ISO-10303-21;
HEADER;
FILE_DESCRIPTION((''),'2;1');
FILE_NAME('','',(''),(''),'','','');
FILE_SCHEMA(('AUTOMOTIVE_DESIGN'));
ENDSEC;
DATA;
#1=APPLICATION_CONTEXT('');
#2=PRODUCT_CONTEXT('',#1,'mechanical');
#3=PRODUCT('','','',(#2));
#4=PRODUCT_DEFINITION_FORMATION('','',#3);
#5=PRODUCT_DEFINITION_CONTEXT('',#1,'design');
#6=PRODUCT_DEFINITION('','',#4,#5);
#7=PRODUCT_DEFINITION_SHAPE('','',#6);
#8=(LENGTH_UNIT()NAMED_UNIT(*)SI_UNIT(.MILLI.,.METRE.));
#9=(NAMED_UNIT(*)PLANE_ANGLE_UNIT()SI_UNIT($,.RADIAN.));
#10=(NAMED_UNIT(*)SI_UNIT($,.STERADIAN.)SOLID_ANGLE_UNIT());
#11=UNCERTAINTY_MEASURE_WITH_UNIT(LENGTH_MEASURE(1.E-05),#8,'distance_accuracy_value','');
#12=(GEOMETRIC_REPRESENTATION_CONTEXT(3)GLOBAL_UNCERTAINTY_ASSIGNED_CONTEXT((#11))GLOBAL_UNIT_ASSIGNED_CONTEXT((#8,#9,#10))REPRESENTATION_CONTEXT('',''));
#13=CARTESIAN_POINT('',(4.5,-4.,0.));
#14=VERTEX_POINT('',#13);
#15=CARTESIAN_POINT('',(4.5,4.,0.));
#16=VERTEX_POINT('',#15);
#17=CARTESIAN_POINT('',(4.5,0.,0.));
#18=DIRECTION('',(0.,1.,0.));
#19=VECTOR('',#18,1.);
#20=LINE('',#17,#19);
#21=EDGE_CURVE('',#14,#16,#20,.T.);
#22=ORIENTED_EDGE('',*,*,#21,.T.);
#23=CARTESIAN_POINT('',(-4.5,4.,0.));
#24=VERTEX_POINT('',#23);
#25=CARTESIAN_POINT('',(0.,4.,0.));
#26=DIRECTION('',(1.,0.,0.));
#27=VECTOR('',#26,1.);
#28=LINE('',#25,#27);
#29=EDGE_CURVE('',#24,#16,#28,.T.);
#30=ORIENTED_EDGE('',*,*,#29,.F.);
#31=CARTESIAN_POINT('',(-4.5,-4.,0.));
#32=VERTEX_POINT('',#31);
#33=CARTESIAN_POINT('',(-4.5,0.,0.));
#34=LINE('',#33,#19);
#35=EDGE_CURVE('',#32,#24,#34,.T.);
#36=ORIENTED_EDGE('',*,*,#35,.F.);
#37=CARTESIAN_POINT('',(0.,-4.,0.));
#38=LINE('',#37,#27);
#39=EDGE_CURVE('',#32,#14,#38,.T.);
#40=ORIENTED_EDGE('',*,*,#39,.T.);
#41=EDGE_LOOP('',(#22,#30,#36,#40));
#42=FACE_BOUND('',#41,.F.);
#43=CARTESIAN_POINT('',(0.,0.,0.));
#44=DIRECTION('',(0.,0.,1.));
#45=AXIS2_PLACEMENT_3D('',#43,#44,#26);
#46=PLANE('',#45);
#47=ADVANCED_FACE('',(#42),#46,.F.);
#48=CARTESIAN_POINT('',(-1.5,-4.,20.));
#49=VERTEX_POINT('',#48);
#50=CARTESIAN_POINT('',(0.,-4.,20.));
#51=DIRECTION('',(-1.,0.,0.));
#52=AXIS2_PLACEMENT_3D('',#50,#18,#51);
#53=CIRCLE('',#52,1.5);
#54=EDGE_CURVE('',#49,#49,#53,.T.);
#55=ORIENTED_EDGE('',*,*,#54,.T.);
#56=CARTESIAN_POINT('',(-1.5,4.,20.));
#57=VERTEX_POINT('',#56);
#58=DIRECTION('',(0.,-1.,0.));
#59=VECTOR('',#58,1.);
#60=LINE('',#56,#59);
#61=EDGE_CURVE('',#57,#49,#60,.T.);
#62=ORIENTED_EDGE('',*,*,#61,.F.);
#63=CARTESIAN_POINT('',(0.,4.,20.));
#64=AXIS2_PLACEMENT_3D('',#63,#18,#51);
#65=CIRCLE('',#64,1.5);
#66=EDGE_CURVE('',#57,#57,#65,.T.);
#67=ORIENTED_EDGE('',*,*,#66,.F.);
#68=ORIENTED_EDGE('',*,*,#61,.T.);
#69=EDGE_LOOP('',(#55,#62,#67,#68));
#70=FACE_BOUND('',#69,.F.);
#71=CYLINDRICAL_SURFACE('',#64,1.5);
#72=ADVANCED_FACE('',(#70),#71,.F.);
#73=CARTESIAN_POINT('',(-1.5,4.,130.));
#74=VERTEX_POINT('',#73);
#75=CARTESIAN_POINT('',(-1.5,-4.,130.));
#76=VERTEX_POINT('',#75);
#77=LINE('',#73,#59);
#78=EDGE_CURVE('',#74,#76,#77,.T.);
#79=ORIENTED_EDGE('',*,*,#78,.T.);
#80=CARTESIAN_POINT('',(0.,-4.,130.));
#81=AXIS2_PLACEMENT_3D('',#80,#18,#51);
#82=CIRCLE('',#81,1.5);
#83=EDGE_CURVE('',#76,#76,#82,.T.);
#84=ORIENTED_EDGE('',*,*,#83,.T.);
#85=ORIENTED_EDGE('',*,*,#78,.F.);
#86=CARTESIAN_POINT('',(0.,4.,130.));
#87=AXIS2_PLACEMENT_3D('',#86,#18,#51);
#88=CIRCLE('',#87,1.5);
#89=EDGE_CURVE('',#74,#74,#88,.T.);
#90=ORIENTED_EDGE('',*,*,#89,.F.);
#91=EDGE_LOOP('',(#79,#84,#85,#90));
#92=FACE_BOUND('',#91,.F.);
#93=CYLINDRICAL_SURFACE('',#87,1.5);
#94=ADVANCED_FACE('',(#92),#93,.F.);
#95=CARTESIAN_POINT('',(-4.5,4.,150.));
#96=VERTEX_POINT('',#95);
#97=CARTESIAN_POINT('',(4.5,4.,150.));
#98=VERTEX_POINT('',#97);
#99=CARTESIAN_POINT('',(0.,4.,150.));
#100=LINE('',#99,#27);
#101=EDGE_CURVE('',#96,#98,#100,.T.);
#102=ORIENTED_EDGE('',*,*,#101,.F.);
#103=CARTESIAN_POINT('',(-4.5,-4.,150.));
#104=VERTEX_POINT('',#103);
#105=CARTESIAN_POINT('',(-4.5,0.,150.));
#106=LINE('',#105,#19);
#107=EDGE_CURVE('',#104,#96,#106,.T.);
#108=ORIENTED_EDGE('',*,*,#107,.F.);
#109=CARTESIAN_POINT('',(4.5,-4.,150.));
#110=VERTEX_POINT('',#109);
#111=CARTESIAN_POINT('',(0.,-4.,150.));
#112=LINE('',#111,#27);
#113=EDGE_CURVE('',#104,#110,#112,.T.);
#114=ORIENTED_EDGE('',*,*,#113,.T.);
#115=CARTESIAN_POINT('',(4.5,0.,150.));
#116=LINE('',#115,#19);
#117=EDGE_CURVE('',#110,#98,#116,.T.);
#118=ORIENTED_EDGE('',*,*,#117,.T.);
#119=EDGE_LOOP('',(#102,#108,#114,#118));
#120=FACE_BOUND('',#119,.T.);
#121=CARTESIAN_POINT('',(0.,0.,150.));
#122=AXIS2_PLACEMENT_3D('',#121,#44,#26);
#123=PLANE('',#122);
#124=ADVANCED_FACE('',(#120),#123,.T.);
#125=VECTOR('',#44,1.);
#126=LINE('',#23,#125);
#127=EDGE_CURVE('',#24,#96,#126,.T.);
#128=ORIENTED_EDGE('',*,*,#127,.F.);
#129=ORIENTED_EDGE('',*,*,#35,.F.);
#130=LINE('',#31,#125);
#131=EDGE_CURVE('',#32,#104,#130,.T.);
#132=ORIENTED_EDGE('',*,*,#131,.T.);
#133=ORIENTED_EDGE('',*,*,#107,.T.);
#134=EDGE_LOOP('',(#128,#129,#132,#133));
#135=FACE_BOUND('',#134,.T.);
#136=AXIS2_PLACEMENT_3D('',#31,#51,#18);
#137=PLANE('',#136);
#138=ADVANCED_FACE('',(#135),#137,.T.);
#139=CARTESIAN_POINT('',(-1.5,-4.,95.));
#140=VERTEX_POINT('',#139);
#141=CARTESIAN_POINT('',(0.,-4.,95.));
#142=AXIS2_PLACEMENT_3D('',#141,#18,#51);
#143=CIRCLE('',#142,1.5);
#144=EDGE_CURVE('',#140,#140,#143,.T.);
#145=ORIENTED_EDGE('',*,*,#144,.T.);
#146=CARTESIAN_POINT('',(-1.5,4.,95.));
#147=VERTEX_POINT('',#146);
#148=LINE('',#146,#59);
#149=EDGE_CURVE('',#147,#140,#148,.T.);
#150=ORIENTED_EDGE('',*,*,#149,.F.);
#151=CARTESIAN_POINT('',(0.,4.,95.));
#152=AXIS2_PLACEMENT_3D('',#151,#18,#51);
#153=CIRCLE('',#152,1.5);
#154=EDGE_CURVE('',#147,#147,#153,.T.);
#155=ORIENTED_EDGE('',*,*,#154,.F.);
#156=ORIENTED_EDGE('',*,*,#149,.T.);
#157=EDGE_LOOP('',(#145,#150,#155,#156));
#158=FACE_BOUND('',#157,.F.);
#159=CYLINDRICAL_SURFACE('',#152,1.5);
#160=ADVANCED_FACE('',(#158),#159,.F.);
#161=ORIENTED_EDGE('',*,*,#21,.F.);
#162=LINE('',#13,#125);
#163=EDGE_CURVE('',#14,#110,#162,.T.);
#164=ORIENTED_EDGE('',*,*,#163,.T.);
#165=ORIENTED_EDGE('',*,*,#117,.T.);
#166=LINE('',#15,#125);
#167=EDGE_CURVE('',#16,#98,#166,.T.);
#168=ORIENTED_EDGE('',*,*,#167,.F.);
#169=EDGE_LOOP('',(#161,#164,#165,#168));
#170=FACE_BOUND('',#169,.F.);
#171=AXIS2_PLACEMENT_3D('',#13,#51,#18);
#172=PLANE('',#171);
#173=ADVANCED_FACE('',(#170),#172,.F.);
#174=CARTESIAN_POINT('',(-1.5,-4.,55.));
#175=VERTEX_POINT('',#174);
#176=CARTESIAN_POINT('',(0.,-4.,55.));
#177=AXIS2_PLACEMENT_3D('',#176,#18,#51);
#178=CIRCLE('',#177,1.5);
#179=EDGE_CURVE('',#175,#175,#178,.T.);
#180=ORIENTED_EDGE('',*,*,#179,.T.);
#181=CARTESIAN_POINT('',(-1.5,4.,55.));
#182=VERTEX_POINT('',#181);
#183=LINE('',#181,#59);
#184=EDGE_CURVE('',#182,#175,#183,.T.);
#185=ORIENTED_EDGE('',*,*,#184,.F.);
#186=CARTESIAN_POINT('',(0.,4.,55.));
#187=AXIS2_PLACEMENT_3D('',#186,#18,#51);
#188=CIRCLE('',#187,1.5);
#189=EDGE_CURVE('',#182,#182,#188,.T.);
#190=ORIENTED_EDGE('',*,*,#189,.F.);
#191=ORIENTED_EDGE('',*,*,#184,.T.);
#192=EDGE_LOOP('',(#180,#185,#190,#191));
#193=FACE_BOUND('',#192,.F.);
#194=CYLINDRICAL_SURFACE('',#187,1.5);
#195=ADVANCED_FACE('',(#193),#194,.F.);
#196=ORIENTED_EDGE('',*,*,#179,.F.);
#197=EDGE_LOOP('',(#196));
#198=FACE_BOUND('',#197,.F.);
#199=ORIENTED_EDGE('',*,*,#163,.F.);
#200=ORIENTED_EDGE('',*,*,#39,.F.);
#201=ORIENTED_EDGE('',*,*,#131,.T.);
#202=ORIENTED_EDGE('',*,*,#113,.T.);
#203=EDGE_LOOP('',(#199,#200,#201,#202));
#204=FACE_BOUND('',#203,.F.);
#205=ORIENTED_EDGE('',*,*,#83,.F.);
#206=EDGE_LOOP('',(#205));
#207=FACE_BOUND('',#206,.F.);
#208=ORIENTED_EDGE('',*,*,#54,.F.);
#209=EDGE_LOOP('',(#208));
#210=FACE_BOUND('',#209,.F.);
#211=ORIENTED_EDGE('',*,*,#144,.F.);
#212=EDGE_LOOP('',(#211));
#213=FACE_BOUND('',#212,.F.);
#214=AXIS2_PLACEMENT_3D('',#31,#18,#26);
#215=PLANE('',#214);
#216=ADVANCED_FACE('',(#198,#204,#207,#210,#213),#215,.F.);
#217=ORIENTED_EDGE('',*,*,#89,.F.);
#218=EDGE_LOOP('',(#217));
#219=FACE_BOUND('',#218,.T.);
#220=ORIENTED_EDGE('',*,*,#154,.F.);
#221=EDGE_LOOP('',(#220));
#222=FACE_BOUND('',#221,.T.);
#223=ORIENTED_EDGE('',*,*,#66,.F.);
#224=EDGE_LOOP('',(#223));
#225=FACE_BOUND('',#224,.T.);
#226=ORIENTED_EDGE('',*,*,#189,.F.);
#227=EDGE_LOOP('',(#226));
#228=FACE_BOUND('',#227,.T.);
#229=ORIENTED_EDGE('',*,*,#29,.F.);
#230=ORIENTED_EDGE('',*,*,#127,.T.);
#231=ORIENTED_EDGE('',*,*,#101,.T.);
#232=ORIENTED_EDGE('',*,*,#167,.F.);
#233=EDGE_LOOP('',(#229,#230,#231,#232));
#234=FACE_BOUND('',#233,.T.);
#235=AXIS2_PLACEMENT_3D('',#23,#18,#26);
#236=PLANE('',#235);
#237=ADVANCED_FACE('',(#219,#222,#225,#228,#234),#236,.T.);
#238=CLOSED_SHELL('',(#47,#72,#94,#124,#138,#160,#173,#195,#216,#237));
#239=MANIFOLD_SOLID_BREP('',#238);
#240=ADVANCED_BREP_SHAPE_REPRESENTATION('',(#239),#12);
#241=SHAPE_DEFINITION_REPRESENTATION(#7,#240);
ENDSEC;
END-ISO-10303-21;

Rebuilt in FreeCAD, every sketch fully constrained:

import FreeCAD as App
import Part
import Sketcher
from FreeCAD import Vector


def add_polygon(sketch, points):
    """Adds a closed chain of lines whose ends are joined by coincident constraints."""
    first, n = sketch.GeometryCount, len(points)
    for a, b in zip(points, points[1:] + points[:1]):
        sketch.addGeometry(Part.LineSegment(App.Vector(*a, 0), App.Vector(*b, 0)), False)
    for i in range(n):
        sketch.addConstraint(Sketcher.Constraint("Coincident", first + i, 2, first + (i + 1) % n, 1))

doc = App.newDocument("Part")
body = doc.addObject("PartDesign::Body", "Body")

sketch1 = doc.addObject("Sketcher::SketchObject", "Sketch")
body.addObject(sketch1)
sketch1.AttachmentSupport = (doc.XY_Plane, [""])
sketch1.MapMode = "FlatFace"
add_polygon(sketch1, [(-4.5, 4), (-4.5, -4), (4.5, -4), (4.5, 4)])
sketch1.addConstraint([
    Sketcher.Constraint("Vertical", 0),
    Sketcher.Constraint("Horizontal", 1),
    Sketcher.Constraint("Vertical", 2),
    Sketcher.Constraint("Horizontal", 3),
    Sketcher.Constraint("Symmetric", 0, 2, 2, 2, -1, 1),
    Sketcher.Constraint("DistanceX", 1, 1, 1, 2, 9.0),
    Sketcher.Constraint("DistanceY", 0, 2, 0, 1, 8.0),
])
pad1 = doc.addObject("PartDesign::Pad", "Pad")
body.addObject(pad1)
pad1.Profile = sketch1
pad1.Length = 150

sketch2 = doc.addObject("Sketcher::SketchObject", "Sketch001")
body.addObject(sketch2)
sketch2.AttachmentSupport = (doc.XZ_Plane, [""])
sketch2.MapMode = "FlatFace"
sketch2.AttachmentOffset = App.Placement(Vector(0, 0, -4), App.Rotation())
sketch2.addGeometry([
    Part.Circle(Vector(0, 20, 0), Vector(0, 0, 1), 1.5),
    Part.Circle(Vector(0, 55, 0), Vector(0, 0, 1), 1.5),
    Part.Circle(Vector(0, 95, 0), Vector(0, 0, 1), 1.5),
    Part.Circle(Vector(0, 130, 0), Vector(0, 0, 1), 1.5),
], False)
sketch2.addConstraint([
    Sketcher.Constraint("Equal", 0, 1),
    Sketcher.Constraint("Equal", 1, 2),
    Sketcher.Constraint("Equal", 2, 3),
    Sketcher.Constraint("PointOnObject", 0, 3, -2),
    Sketcher.Constraint("PointOnObject", 1, 3, -2),
    Sketcher.Constraint("PointOnObject", 2, 3, -2),
    Sketcher.Constraint("PointOnObject", 3, 3, -2),
    Sketcher.Constraint("Diameter", 0, 3.0),
    Sketcher.Constraint("DistanceY", -1, 1, 0, 3, 20.0),
    Sketcher.Constraint("DistanceY", -1, 1, 1, 3, 55.0),
    Sketcher.Constraint("DistanceY", -1, 1, 2, 3, 95.0),
    Sketcher.Constraint("DistanceY", -1, 1, 3, 3, 130.0),
])
pocket1 = doc.addObject("PartDesign::Pocket", "Pocket")
body.addObject(pocket1)
pocket1.Profile = sketch2
pocket1.Length = 9
pocket1.Reversed = True

doc.recompute()
